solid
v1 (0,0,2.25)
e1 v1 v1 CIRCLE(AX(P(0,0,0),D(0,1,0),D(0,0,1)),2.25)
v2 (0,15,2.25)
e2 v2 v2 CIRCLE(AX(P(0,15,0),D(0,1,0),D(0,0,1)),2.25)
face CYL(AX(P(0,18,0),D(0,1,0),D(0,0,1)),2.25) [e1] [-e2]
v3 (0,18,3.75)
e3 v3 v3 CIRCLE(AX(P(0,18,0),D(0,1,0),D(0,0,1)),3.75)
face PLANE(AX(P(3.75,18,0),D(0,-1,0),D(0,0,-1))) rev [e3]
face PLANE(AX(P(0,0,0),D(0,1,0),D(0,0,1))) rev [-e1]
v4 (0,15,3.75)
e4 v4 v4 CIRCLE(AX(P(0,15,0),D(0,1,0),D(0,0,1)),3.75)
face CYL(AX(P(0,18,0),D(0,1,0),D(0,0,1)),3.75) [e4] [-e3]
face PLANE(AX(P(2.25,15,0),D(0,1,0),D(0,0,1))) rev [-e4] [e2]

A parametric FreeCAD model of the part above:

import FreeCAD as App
import Part
import Sketcher
from FreeCAD import Vector
Q = App.Units.Quantity


def add_polygon(sketch, points):
    """Adds a closed chain of lines whose ends are joined by coincident constraints."""
    first, n = sketch.GeometryCount, len(points)
    for a, b in zip(points, points[1:] + points[:1]):
        sketch.addGeometry(Part.LineSegment(App.Vector(*a, 0), App.Vector(*b, 0)), False)
    for i in range(n):
        sketch.addConstraint(Sketcher.Constraint("Coincident", first + i, 2, first + (i + 1) % n, 1))

doc = App.newDocument("Part")
params = doc.addObject("Spreadsheet::Sheet", "Params")
for row, (alias, value) in enumerate([
    ("sketch1_height", "15 mm"),
    ("sketch1_height2", "3 mm"),
    ("sketch1_width", "1.5 mm"),
    ("sketch1_width2", "2.25 mm"),
    ("revolution_angle", "360 deg"),
], start=1):
    params.set(f"A{row}", alias)
    params.set(f"B{row}", "=" + value)
    params.setAlias(f"B{row}", alias)

body = doc.addObject("PartDesign::Body", "Body")

# Sketch on XY plane
sketch1 = body.newObject("Sketcher::SketchObject", "Sketch")
sketch1.AttachmentSupport = (doc.getObject("XY_Plane"), [""])
sketch1.MapMode = "FlatFace"
add_polygon(sketch1, [(0, 0), (2.25, 0), (2.25, 15), (3.75, 15), (3.75, 18), (0, 18)])  # lines 0-5
sketch1.addConstraint([
    Sketcher.Constraint("Horizontal", 0),
    Sketcher.Constraint("Vertical", 1),
    Sketcher.Constraint("Horizontal", 2),
    Sketcher.Constraint("Vertical", 3),
    Sketcher.Constraint("Horizontal", 4),
    Sketcher.Constraint("Vertical", 5),
    Sketcher.Constraint("Coincident", 5, 2, -1, 1),
    Sketcher.Constraint("DistanceY", 1, 1, 1, 2, Q("15 mm")),
    Sketcher.Constraint("DistanceY", 3, 1, 3, 2, Q("3 mm")),
    Sketcher.Constraint("DistanceX", 2, 1, 2, 2, Q("1.5 mm")),
    Sketcher.Constraint("DistanceX", 0, 1, 0, 2, Q("2.25 mm")),
])
sketch1.setExpression("Constraints[13]", "Params.sketch1_height")
sketch1.setExpression("Constraints[14]", "Params.sketch1_height2")
sketch1.setExpression("Constraints[15]", "Params.sketch1_width")
sketch1.setExpression("Constraints[16]", "Params.sketch1_width2")
revolution = body.newObject("PartDesign::Revolution", "Revolution")
revolution.Profile = sketch1
revolution.ReferenceAxis = (sketch1, ["V_Axis"])
revolution.setExpression("Angle", "Params.revolution_angle")

doc.recompute()
